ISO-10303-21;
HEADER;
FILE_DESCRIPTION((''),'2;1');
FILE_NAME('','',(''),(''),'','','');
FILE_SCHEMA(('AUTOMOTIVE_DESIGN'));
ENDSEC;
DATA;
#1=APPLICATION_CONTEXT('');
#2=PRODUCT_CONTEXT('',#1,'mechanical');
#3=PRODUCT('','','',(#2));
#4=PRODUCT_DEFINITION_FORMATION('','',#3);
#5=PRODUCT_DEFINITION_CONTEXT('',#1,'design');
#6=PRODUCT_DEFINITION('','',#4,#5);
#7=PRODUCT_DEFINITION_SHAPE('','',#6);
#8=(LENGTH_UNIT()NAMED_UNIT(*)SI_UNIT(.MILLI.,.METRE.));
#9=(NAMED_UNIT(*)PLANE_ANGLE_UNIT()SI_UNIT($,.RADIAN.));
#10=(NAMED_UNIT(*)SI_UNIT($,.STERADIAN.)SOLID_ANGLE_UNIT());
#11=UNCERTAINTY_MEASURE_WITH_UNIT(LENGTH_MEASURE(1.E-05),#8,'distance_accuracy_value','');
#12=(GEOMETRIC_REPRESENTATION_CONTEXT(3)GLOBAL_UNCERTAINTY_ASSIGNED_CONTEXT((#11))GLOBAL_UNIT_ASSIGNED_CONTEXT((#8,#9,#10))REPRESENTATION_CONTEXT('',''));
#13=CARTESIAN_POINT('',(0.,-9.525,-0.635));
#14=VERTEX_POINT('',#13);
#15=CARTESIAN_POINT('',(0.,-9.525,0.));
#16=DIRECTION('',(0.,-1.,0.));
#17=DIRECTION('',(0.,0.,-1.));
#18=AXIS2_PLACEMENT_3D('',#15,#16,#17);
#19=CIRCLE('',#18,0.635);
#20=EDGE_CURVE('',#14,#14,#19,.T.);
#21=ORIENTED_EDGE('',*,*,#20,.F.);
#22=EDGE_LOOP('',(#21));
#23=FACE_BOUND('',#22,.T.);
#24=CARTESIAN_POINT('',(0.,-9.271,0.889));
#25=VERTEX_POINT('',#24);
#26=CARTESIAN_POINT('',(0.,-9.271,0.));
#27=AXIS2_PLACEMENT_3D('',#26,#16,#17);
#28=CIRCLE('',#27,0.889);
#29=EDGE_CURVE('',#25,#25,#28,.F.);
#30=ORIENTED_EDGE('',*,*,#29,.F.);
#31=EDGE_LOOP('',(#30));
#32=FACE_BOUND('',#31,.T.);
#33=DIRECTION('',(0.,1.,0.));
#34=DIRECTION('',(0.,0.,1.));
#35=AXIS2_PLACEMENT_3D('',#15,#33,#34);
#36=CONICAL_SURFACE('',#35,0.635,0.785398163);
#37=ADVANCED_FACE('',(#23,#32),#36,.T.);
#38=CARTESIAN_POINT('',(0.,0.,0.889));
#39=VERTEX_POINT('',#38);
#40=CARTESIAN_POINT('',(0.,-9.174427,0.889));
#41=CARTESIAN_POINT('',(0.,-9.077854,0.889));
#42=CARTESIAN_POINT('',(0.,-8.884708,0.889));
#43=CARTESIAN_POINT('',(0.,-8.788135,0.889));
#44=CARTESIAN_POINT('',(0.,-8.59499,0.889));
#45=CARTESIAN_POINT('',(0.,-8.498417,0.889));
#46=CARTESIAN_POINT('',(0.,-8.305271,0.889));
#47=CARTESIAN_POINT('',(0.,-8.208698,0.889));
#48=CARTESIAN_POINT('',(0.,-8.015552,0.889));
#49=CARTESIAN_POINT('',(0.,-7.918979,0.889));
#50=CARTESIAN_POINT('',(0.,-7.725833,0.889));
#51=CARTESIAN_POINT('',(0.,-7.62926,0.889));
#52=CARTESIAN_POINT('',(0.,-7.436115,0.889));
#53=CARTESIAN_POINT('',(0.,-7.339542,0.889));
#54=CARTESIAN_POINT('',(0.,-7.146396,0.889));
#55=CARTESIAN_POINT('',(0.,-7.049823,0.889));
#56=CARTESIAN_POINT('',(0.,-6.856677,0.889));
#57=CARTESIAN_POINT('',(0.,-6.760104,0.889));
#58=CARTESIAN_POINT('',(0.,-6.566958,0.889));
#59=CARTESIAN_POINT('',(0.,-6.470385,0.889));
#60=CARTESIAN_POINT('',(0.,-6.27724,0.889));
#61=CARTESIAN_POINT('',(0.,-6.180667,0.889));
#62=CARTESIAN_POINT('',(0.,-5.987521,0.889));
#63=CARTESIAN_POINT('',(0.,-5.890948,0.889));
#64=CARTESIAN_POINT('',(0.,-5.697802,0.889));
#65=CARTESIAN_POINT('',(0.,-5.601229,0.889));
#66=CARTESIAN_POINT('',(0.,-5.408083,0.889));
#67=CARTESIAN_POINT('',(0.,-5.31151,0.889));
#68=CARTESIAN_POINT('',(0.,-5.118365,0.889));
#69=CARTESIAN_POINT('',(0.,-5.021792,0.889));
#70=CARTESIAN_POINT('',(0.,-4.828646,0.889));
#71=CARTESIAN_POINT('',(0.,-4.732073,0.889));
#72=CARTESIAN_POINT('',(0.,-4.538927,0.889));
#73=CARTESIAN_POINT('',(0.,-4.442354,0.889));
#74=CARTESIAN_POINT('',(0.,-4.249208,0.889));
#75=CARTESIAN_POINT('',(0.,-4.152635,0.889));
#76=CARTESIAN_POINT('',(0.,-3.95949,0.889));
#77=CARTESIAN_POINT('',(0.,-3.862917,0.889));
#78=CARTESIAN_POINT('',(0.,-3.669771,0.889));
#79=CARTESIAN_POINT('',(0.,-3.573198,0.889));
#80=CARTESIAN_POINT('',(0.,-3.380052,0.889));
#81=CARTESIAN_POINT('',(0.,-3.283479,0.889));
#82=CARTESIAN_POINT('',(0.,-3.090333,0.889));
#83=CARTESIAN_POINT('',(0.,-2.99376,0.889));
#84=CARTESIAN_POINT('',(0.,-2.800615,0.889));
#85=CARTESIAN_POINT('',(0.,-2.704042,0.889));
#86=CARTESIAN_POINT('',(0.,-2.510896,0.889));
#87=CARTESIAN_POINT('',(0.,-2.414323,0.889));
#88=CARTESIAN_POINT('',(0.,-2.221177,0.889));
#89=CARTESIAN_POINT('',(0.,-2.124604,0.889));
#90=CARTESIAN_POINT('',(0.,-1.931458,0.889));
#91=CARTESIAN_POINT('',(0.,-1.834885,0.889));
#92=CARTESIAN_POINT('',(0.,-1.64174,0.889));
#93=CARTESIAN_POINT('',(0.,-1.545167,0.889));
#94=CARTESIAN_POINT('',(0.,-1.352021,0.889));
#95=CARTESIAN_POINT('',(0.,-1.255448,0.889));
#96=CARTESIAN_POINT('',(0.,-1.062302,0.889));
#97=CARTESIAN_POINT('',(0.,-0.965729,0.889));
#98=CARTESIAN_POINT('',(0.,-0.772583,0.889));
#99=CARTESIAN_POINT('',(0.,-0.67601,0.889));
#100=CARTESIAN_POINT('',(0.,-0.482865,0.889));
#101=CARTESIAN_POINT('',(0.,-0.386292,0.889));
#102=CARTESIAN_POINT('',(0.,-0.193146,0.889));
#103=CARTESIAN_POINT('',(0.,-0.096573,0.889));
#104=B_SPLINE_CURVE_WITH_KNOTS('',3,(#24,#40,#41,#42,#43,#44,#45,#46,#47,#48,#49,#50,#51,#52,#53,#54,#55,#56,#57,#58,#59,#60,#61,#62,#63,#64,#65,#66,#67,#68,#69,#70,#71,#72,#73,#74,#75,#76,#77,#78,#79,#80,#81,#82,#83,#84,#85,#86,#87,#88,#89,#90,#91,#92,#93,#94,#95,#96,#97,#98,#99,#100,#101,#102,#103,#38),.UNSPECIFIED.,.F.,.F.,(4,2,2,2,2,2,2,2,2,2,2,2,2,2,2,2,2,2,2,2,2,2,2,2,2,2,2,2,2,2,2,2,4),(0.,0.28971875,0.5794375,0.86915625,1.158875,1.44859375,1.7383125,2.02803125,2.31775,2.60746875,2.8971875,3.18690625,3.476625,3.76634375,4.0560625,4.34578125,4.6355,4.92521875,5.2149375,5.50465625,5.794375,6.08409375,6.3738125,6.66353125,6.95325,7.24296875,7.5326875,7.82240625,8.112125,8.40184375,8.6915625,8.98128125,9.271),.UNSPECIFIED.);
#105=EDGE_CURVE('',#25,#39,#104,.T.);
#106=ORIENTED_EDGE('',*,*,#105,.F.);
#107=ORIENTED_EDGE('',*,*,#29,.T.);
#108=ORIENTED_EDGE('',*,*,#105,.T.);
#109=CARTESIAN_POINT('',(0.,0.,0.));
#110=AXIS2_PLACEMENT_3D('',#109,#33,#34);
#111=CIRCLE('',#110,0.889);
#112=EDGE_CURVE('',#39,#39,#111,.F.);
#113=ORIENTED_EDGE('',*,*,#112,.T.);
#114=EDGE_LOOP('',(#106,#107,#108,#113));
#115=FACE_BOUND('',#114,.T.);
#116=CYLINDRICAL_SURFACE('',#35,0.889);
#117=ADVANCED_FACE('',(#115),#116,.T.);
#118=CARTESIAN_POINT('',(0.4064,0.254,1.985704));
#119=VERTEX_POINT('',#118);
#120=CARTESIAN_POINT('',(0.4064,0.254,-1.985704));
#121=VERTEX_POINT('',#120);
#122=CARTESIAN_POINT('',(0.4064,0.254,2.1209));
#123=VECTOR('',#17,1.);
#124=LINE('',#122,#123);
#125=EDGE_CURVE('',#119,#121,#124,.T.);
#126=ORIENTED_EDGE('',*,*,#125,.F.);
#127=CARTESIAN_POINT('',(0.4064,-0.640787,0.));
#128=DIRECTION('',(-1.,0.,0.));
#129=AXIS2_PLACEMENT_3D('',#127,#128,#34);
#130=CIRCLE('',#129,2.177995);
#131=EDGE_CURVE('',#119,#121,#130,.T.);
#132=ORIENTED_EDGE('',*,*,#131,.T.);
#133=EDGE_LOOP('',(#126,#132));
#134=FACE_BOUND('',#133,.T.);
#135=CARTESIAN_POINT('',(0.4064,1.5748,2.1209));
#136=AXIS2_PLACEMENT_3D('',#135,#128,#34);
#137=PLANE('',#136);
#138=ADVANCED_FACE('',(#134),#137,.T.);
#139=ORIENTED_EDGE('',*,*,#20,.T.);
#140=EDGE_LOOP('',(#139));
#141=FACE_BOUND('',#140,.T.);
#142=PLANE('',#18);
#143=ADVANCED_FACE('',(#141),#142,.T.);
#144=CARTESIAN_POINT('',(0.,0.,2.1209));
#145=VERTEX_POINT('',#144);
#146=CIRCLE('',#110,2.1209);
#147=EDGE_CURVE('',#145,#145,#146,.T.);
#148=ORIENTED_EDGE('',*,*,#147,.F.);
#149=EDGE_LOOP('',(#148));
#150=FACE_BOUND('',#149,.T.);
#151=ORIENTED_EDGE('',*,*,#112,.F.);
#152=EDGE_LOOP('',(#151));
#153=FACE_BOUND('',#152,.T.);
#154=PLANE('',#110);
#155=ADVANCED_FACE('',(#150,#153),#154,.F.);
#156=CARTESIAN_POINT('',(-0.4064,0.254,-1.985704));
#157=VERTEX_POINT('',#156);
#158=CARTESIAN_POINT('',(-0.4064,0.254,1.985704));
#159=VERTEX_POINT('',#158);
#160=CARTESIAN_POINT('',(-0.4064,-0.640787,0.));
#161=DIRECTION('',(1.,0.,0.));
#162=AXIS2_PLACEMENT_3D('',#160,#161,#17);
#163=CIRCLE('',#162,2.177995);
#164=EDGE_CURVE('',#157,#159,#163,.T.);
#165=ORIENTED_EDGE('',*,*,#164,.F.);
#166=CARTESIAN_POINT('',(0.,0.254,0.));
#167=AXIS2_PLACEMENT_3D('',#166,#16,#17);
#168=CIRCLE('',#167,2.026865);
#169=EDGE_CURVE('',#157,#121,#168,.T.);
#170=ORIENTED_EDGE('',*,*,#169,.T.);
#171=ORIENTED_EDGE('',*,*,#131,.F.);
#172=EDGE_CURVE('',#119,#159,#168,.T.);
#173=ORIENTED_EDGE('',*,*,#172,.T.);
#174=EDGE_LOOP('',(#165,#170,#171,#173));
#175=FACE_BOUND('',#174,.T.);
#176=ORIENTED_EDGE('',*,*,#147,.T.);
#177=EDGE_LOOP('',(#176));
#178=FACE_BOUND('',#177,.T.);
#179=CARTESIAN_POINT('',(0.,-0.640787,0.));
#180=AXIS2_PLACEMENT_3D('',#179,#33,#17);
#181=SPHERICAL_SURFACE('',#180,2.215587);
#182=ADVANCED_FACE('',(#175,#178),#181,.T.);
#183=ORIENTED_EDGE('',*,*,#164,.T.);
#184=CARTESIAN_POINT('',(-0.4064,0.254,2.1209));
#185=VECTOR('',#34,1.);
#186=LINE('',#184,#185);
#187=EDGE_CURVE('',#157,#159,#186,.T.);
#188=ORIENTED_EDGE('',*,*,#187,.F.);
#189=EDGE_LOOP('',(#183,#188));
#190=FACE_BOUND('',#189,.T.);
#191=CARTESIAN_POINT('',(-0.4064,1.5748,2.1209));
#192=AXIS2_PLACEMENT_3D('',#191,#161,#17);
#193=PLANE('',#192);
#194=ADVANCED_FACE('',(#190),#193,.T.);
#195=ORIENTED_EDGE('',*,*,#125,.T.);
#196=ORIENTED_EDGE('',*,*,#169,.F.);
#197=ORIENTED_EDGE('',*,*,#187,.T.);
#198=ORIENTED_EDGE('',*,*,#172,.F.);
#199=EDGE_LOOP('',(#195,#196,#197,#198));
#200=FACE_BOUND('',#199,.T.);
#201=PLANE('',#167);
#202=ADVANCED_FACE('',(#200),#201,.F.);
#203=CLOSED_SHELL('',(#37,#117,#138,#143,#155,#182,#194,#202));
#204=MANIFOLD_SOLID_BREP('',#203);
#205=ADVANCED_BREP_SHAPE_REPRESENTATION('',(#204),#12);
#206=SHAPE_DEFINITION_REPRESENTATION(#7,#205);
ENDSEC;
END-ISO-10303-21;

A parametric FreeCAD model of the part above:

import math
import FreeCAD as App
import Part
import Sketcher
Q = App.Units.Quantity


def edges_at(feature, points):
    """Names of the edges that pass closest to the given points."""
    edges = feature.Shape.Edges
    near = lambda p: min(range(len(edges)), key=lambda i: edges[i].distToShape(Part.Vertex(*p))[0])
    return sorted({f"Edge{near(p) + 1}" for p in points})

doc = App.newDocument("Part")
params = doc.addObject("Spreadsheet::Sheet", "Params")
for row, (alias, value) in enumerate([
    ("sketch1_width", "0.062 in"),
    ("revolution_angle", "360 deg"),
    ("sketch2_diameter", "0.07 in"),
    ("pad1_length", "0.375 in"),
    ("chamfer_size", "0.01 in"),
    ("sketch3_width", "0.032 in"),
    ("sketch3_height", "0.167 in"),
], start=1):
    params.set(f"A{row}", alias)
    params.set(f"B{row}", "=" + value)
    params.setAlias(f"B{row}", alias)

body = doc.addObject("PartDesign::Body", "Body")

sketch1 = body.newObject("Sketcher::SketchObject", "Sketch")
sketch1.AttachmentSupport = (doc.getObject("YZ_Plane"), [""])
sketch1.MapMode = "FlatFace"
sketch1.addGeometry(Part.LineSegment(App.Vector(0, 0, 0), App.Vector(0, -2.1209, 0)), False)
sketch1.addGeometry(Part.ArcOfCircle(Part.Circle(App.Vector(-0.640787, 0, 0), App.Vector(0, 0, 1), 2.215587), math.radians(-73.188879), math.radians(0)), False)
sketch1.addGeometry(Part.LineSegment(App.Vector(1.5748, 0, 0), App.Vector(0, 0, 0)), False)
sketch1.addConstraint(Sketcher.Constraint("Coincident", 0, 2, 1, 1))
sketch1.addConstraint(Sketcher.Constraint("Coincident", 1, 2, 2, 1))
sketch1.addConstraint(Sketcher.Constraint("Coincident", 2, 2, 0, 1))
sketch1.addConstraint(Sketcher.Constraint("Vertical", 0))
sketch1.addConstraint(Sketcher.Constraint("Horizontal", 2))
sketch1.addConstraint(Sketcher.Constraint("Coincident", 2, 2, -1, 1))
sketch1.addConstraint(Sketcher.Constraint("PointOnObject", 1, 3, -1))
sketch1.addConstraint(Sketcher.Constraint("DistanceX", 2, 2, 2, 1, Q("0.062 in")))
sketch1.addConstraint(Sketcher.Constraint("DistanceY", 0, 2, 0, 1, Q("0.0835 in")))
sketch1.setExpression("Constraints[7]", "Params.sketch1_width")
revolution = body.newObject("PartDesign::Revolution", "Revolution")
revolution.Profile = sketch1
revolution.ReferenceAxis = (sketch1, ["H_Axis"])
revolution.setExpression("Angle", "Params.revolution_angle")

sketch2 = body.newObject("Sketcher::SketchObject", "Sketch001")
sketch2.AttachmentSupport = (doc.getObject("XZ_Plane"), [""])
sketch2.MapMode = "FlatFace"
sketch2.addGeometry(Part.Circle(App.Vector(0, 0, 0), App.Vector(0, 0, 1), 0.889), False)
sketch2.addConstraint(Sketcher.Constraint("Coincident", 0, 3, -1, 1))
sketch2.addConstraint(Sketcher.Constraint("Diameter", 0, Q("0.07 in")))
sketch2.setExpression("Constraints[1]", "Params.sketch2_diameter")
pad1 = body.newObject("PartDesign::Pad", "Pad")
pad1.Profile = sketch2
pad1.setExpression("Length", "Params.pad1_length")
doc.recompute()

chamfer = body.newObject("PartDesign::Chamfer", "Chamfer")
chamfer.Base = (pad1, edges_at(pad1, [(0, -9.525, -0.889)]))
chamfer.setExpression("Size", "Params.chamfer_size")

sketch3 = body.newObject("Sketcher::SketchObject", "Sketch002")
sketch3.AttachmentSupport = (doc.getObject("XZ_Plane"), [""])
sketch3.MapMode = "FlatFace"
sketch3.AttachmentOffset = App.Placement(App.Vector(0, 0, -0.01 * 25.4), App.Rotation())
sketch3.addGeometry(Part.LineSegment(App.Vector(-0.4064, -2.1209, 0), App.Vector(-0.4064, 2.1209, 0)), False)
sketch3.addGeometry(Part.LineSegment(App.Vector(-0.4064, 2.1209, 0), App.Vector(0.4064, 2.1209, 0)), False)
sketch3.addGeometry(Part.LineSegment(App.Vector(0.4064, 2.1209, 0), App.Vector(0.4064, -2.1209, 0)), False)
sketch3.addGeometry(Part.LineSegment(App.Vector(0.4064, -2.1209, 0), App.Vector(-0.4064, -2.1209, 0)), False)
sketch3.addConstraint(Sketcher.Constraint("Coincident", 0, 2, 1, 1))
sketch3.addConstraint(Sketcher.Constraint("Coincident", 1, 2, 2, 1))
sketch3.addConstraint(Sketcher.Constraint("Coincident", 2, 2, 3, 1))
sketch3.addConstraint(Sketcher.Constraint("Coincident", 3, 2, 0, 1))
sketch3.addConstraint(Sketcher.Constraint("Vertical", 0))
sketch3.addConstraint(Sketcher.Constraint("Horizontal", 1))
sketch3.addConstraint(Sketcher.Constraint("Vertical", 2))
sketch3.addConstraint(Sketcher.Constraint("Horizontal", 3))
sketch3.addConstraint(Sketcher.Constraint("Symmetric", 0, 2, 2, 2, -1, 1))
sketch3.addConstraint(Sketcher.Constraint("DistanceX", 1, 1, 1, 2, Q("0.032 in")))
sketch3.addConstraint(Sketcher.Constraint("DistanceY", 0, 1, 0, 2, Q("0.167 in")))
sketch3.setExpression("Constraints[9]", "Params.sketch3_width")
sketch3.setExpression("Constraints[10]", "Params.sketch3_height")
pocket1 = body.newObject("PartDesign::Pocket", "Pocket")
pocket1.Profile = sketch3
pocket1.Type = "ThroughAll"

doc.recompute()
